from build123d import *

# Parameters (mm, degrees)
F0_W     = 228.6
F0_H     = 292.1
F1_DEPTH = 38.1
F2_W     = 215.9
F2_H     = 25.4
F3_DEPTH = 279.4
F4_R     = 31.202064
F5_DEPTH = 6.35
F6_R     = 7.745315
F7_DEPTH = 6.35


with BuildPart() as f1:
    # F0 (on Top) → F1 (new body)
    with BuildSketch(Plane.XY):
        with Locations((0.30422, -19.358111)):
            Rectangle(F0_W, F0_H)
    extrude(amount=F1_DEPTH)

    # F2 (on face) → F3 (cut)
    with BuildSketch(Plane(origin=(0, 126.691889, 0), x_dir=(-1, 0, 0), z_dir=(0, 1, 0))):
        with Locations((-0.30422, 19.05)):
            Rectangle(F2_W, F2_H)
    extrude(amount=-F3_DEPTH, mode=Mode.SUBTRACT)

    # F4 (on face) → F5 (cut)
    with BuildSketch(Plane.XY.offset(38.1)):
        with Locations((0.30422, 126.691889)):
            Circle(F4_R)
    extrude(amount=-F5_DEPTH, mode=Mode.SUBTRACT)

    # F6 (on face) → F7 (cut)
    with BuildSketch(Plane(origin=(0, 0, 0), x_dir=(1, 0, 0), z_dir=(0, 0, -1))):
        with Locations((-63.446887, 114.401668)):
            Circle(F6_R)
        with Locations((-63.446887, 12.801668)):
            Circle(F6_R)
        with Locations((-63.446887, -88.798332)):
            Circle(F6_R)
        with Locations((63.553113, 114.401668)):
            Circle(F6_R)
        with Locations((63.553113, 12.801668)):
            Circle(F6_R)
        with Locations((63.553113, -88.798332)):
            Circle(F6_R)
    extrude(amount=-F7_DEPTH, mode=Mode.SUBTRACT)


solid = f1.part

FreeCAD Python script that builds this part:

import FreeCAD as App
import Part
import Sketcher
Q = App.Units.Quantity

doc = App.newDocument("Part")
params = doc.addObject("Spreadsheet::Sheet", "Params")
for row, (alias, value) in enumerate([
    ("sketch1_width", "9 in"),
    ("sketch1_height", "11.5 in"),
    ("pad1_length", "1.5 in"),
    ("sketch2_height", "1 in"),
    ("sketch2_width", "8.5 in"),
    ("pocket1_length", "11 in"),
    ("pocket2_length", "0.25 in"),
    ("pocket3_length", "0.25 in"),
], start=1):
    params.set(f"A{row}", alias)
    params.set(f"B{row}", "=" + value)
    params.setAlias(f"B{row}", alias)

body = doc.addObject("PartDesign::Body", "Body")

# Sketch on XY plane
sketch1 = doc.addObject("Sketcher::SketchObject", "Sketch")
body.addObject(sketch1)
sketch1.AttachmentSupport = (doc.XY_Plane, [""])
sketch1.MapMode = "FlatFace"
sketch1.addGeometry([
    Part.LineSegment(App.Vector(-114, 127, 0), App.Vector(-114, -165, 0)),
    Part.LineSegment(App.Vector(-114, -165, 0), App.Vector(115, -165, 0)),
    Part.LineSegment(App.Vector(115, -165, 0), App.Vector(115, 127, 0)),
    Part.LineSegment(App.Vector(115, 127, 0), App.Vector(-114, 127, 0)),
], False)
sketch1.addConstraint([
    Sketcher.Constraint("Coincident", 0, 2, 1, 1),
    Sketcher.Constraint("Coincident", 1, 2, 2, 1),
    Sketcher.Constraint("Coincident", 2, 2, 3, 1),
    Sketcher.Constraint("Coincident", 3, 2, 0, 1),
    Sketcher.Constraint("Vertical", 0),
    Sketcher.Constraint("Horizontal", 1),
    Sketcher.Constraint("Vertical", 2),
    Sketcher.Constraint("Horizontal", 3),
    Sketcher.Constraint("DistanceX", 1, 1, 1, 2, Q("9 in")),
    Sketcher.Constraint("DistanceY", 0, 2, 0, 1, Q("11.5 in")),
    Sketcher.Constraint("DistanceX", 0, 2, -1, 1, 113.99578),
    Sketcher.Constraint("DistanceY", 0, 2, -1, 1, 165.408111),
])
sketch1.setExpression("Constraints[8]", "Params.sketch1_width")
sketch1.setExpression("Constraints[9]", "Params.sketch1_height")
pad1 = doc.addObject("PartDesign::Pad", "Pad")
body.addObject(pad1)
pad1.Profile = sketch1
pad1.setExpression("Length", "Params.pad1_length")

# Sketch on XZ plane
sketch2 = doc.addObject("Sketcher::SketchObject", "Sketch001")
body.addObject(sketch2)
sketch2.AttachmentSupport = (doc.XZ_Plane, [""])
sketch2.MapMode = "FlatFace"
sketch2.AttachmentOffset = App.Placement(App.Vector(0, 0, -126.691889), App.Rotation())
sketch2.addGeometry([
    Part.LineSegment(App.Vector(108, 32, 0), App.Vector(108, 6, 0)),
    Part.LineSegment(App.Vector(108, 6, 0), App.Vector(-108, 6, 0)),
    Part.LineSegment(App.Vector(-108, 6, 0), App.Vector(-108, 32, 0)),
    Part.LineSegment(App.Vector(-108, 32, 0), App.Vector(108, 32, 0)),
], False)
sketch2.addConstraint([
    Sketcher.Constraint("Coincident", 0, 2, 1, 1),
    Sketcher.Constraint("Coincident", 1, 2, 2, 1),
    Sketcher.Constraint("Coincident", 2, 2, 3, 1),
    Sketcher.Constraint("Coincident", 3, 2, 0, 1),
    Sketcher.Constraint("Vertical", 0),
    Sketcher.Constraint("Horizontal", 1),
    Sketcher.Constraint("Vertical", 2),
    Sketcher.Constraint("Horizontal", 3),
    Sketcher.Constraint("DistanceY", 0, 2, 0, 1, Q("1 in")),
    Sketcher.Constraint("DistanceX", 1, 2, 1, 1, Q("8.5 in")),
    Sketcher.Constraint("DistanceY", -1, 1, 0, 2, Q("0.25 in")),
    Sketcher.Constraint("DistanceX", -1, 1, 0, 2, 108.25422),
])
sketch2.setExpression("Constraints[8]", "Params.sketch2_height")
sketch2.setExpression("Constraints[9]", "Params.sketch2_width")
pocket1 = doc.addObject("PartDesign::Pocket", "Pocket")
body.addObject(pocket1)
pocket1.Profile = sketch2
pocket1.setExpression("Length", "Params.pocket1_length")
pocket1.Reversed = True

# Sketch on XY plane
sketch3 = doc.addObject("Sketcher::SketchObject", "Sketch002")
body.addObject(sketch3)
sketch3.AttachmentSupport = (doc.XY_Plane, [""])
sketch3.MapMode = "FlatFace"
sketch3.AttachmentOffset = App.Placement(App.Vector(0, 0, 1.5 * 25.4), App.Rotation())
sketch3.addGeometry(Part.Circle(App.Vector(0, 127, 0), App.Vector(0, 0, 1), 31), False)
sketch3.addConstraint([
    Sketcher.Constraint("Diameter", 0, 62.404128),
    Sketcher.Constraint("DistanceX", -1, 1, 0, 3, 0.30422),
    Sketcher.Constraint("DistanceY", -1, 1, 0, 3, 126.691889),
])
pocket2 = doc.addObject("PartDesign::Pocket", "Pocket001")
body.addObject(pocket2)
pocket2.Profile = sketch3
pocket2.setExpression("Length", "Params.pocket2_length")

# Sketch on XY plane
sketch4 = doc.addObject("Sketcher::SketchObject", "Sketch003")
body.addObject(sketch4)
sketch4.AttachmentSupport = (doc.XY_Plane, [""])
sketch4.MapMode = "FlatFace"
sketch4.addGeometry([
    Part.Circle(App.Vector(-63, -114, 0), App.Vector(0, 0, 1), 8),  # 0
    Part.Circle(App.Vector(-63, -13, 0), App.Vector(0, 0, 1), 8),  # 1
    Part.Circle(App.Vector(-63, 89, 0), App.Vector(0, 0, 1), 8),  # 2
    Part.Circle(App.Vector(64, -114, 0), App.Vector(0, 0, 1), 8),  # 3
    Part.Circle(App.Vector(64, -13, 0), App.Vector(0, 0, 1), 8),  # 4
    Part.Circle(App.Vector(64, 89, 0), App.Vector(0, 0, 1), 8),  # 5
], False)
sketch4.addConstraint([
    Sketcher.Constraint("Equal", 0, 1),
    Sketcher.Constraint("Equal", 1, 2),
    Sketcher.Constraint("Equal", 2, 3),
    Sketcher.Constraint("Equal", 3, 4),
    Sketcher.Constraint("Equal", 4, 5),
    Sketcher.Constraint("Horizontal", 0, 3, 3, 3),
    Sketcher.Constraint("Horizontal", 1, 3, 4, 3),
    Sketcher.Constraint("Horizontal", 2, 3, 5, 3),
    Sketcher.Constraint("Vertical", 0, 3, 1, 3),
    Sketcher.Constraint("Vertical", 1, 3, 2, 3),
    Sketcher.Constraint("Vertical", 3, 3, 4, 3),
    Sketcher.Constraint("Vertical", 4, 3, 5, 3),
    Sketcher.Constraint("DistanceY", 0, 3, 1, 3, Q("4 in")),
    Sketcher.Constraint("DistanceY", 1, 3, 2, 3, Q("4 in")),
    Sketcher.Constraint("DistanceX", 0, 3, 3, 3, Q("5 in")),
    Sketcher.Constraint("Diameter", 0, 15.49063),
    Sketcher.Constraint("DistanceY", 0, 3, -1, 1, 114.401668),
    Sketcher.Constraint("DistanceX", 0, 3, -1, 1, 63.446887),
])
pocket3 = doc.addObject("PartDesign::Pocket", "Pocket002")
body.addObject(pocket3)
pocket3.Profile = sketch4
pocket3.setExpression("Length", "Params.pocket3_length")
pocket3.Reversed = True

doc.recompute()
